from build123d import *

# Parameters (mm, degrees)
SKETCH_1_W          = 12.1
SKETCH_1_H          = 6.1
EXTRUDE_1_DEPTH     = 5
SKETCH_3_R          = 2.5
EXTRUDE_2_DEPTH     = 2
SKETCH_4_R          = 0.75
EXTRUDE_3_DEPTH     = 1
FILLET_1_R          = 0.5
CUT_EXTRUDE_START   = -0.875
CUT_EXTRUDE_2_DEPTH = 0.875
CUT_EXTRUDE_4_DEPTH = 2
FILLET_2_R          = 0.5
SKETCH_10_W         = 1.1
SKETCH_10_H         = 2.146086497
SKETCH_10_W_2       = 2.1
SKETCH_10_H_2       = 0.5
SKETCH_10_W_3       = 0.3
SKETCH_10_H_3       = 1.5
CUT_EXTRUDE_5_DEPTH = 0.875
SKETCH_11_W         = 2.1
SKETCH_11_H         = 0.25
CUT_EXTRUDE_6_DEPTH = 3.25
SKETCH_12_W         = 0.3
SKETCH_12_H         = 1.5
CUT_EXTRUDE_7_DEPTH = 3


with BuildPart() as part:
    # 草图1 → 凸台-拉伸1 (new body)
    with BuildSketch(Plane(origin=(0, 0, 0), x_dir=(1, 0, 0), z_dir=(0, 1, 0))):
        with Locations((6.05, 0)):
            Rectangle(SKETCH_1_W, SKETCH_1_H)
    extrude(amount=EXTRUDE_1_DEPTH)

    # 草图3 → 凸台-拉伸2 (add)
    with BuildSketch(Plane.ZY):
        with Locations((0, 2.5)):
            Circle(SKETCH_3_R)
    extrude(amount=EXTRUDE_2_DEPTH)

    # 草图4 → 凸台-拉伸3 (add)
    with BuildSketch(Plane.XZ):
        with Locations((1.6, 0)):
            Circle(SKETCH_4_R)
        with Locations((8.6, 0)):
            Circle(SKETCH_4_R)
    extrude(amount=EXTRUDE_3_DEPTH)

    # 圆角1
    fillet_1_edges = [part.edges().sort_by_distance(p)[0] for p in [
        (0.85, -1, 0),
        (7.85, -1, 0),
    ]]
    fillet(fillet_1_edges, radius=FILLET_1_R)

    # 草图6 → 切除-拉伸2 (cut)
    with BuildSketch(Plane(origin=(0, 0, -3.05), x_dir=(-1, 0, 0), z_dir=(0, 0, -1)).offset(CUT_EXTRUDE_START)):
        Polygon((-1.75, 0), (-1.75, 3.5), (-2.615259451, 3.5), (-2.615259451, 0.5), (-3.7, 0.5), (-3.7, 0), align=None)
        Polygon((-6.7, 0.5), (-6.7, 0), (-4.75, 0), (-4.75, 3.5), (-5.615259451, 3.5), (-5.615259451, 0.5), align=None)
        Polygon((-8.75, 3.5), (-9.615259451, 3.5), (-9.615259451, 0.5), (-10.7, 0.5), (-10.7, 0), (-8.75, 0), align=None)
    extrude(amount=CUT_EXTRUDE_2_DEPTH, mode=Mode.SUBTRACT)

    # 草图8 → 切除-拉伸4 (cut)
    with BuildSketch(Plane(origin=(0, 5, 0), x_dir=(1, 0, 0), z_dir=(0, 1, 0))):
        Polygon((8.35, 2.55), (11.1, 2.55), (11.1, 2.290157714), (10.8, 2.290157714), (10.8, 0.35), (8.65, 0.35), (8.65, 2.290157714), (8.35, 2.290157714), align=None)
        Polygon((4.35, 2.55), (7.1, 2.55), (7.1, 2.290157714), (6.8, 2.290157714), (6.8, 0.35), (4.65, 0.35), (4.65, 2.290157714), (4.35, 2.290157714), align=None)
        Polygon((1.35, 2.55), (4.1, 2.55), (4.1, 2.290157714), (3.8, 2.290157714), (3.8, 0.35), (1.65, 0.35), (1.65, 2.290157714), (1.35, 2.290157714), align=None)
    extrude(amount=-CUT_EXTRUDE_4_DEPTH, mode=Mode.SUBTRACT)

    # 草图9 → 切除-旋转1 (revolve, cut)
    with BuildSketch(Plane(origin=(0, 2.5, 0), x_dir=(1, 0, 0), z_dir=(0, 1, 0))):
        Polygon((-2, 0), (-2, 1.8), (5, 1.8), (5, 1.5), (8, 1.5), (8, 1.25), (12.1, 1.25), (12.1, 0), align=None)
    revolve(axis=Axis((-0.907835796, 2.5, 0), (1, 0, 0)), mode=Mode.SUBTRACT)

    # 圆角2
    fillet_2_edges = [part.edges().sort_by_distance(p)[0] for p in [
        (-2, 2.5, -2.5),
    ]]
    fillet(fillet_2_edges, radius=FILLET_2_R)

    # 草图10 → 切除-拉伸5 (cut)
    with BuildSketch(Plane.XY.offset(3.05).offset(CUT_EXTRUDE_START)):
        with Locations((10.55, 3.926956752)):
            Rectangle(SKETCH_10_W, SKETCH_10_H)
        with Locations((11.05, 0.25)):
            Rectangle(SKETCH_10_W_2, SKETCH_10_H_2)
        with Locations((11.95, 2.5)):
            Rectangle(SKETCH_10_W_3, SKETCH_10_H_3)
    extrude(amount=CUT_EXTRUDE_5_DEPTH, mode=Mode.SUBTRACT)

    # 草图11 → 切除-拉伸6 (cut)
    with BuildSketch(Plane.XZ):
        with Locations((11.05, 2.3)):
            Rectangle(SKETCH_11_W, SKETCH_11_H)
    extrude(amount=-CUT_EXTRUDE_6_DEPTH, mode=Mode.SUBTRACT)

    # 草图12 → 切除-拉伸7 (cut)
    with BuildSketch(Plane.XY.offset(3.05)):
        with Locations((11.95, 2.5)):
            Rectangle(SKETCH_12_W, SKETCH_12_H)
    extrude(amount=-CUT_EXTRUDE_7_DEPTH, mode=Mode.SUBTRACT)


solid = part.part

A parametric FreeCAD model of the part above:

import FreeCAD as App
import Part
import Sketcher

V = App.Vector


def edges_at(feature, points):
    """Names of the edges that pass closest to the given points."""
    edges = feature.Shape.Edges
    near = lambda p: min(range(len(edges)), key=lambda i: edges[i].distToShape(Part.Vertex(*p))[0])
    return sorted({f"Edge{near(p) + 1}" for p in points})


def add_polygon(sketch, points):
    """Adds a closed chain of lines whose ends are joined by coincident constraints."""
    first, n = sketch.GeometryCount, len(points)
    for a, b in zip(points, points[1:] + points[:1]):
        sketch.addGeometry(Part.LineSegment(App.Vector(*a, 0), App.Vector(*b, 0)), False)
    for i in range(n):
        sketch.addConstraint(Sketcher.Constraint("Coincident", first + i, 2, first + (i + 1) % n, 1))

doc = App.newDocument("Part")
body = doc.addObject("PartDesign::Body", "Body")

sketch1 = body.newObject("Sketcher::SketchObject", "Sketch")
sketch1.AttachmentSupport = (doc.getObject("XZ_Plane"), [""])
sketch1.MapMode = "FlatFace"
add_polygon(sketch1, [(0, -3), (0, 3), (12, 3), (12, -3)])
sketch1.addConstraint([
    Sketcher.Constraint("Vertical", 0),
    Sketcher.Constraint("Horizontal", 1),
    Sketcher.Constraint("Vertical", 2),
    Sketcher.Constraint("Horizontal", 3),
    Sketcher.Constraint("Symmetric", 0, 2, 3, 2, -1, 1),
    Sketcher.Constraint("DistanceX", 1, 1, 1, 2, 12.1),
    Sketcher.Constraint("DistanceY", 0, 1, 0, 2, 6.1),
])
pad1 = body.newObject("PartDesign::Pad", "Pad")
pad1.Profile = sketch1
pad1.Length = 5
pad1.Reversed = True

sketch2 = body.newObject("Sketcher::SketchObject", "Sketch001")
sketch2.AttachmentSupport = (doc.getObject("YZ_Plane"), [""])
sketch2.MapMode = "FlatFace"
sketch2.addGeometry(Part.Circle(V(2.5, 0, 0), V(0, 0, 1), 2.5), False)
sketch2.addConstraint([
    Sketcher.Constraint("PointOnObject", 0, 3, -1),
    Sketcher.Constraint("Diameter", 0, 5.0),
    Sketcher.Constraint("DistanceX", -1, 1, 0, 3, 2.5),
])
pad2 = body.newObject("PartDesign::Pad", "Pad001")
pad2.Profile = sketch2
pad2.Length = 2
pad2.Reversed = True

sketch3 = body.newObject("Sketcher::SketchObject", "Sketch002")
sketch3.AttachmentSupport = (doc.getObject("XZ_Plane"), [""])
sketch3.MapMode = "FlatFace"
sketch3.addGeometry([
    Part.Circle(V(1.6, 0, 0), V(0, 0, 1), 0.8),
    Part.Circle(V(8.6, 0, 0), V(0, 0, 1), 0.8),
], False)
sketch3.addConstraint([
    Sketcher.Constraint("Equal", 0, 1),
    Sketcher.Constraint("PointOnObject", 0, 3, -1),
    Sketcher.Constraint("PointOnObject", 1, 3, -1),
    Sketcher.Constraint("Diameter", 0, 1.5),
    Sketcher.Constraint("DistanceX", 0, 3, 1, 3, 7.0),
    Sketcher.Constraint("DistanceX", -1, 1, 0, 3, 1.6),
])
pad3 = body.newObject("PartDesign::Pad", "Pad002")
pad3.Profile = sketch3
pad3.Length = 1
doc.recompute()

fillet = body.newObject("PartDesign::Fillet", "Fillet")
fillet.Base = (pad3, edges_at(pad3, [(0.85, -1, 0), (7.85, -1, 0)]))
fillet.Radius = 0.5

sketch4 = body.newObject("Sketcher::SketchObject", "Sketch003")
sketch4.AttachmentSupport = (doc.getObject("XY_Plane"), [""])
sketch4.MapMode = "FlatFace"
sketch4.AttachmentOffset = App.Placement(V(0, 0, -2.175), App.Rotation())
add_polygon(sketch4, [(1.8, 0), (1.8, 3.5), (2.6, 3.5), (2.6, 0.5), (3.7, 0.5), (3.7, 0)])
add_polygon(sketch4, [(6.7, 0.5), (6.7, 0), (4.8, 0), (4.8, 3.5), (5.6, 3.5), (5.6, 0.5)])
add_polygon(sketch4, [(8.8, 3.5), (9.6, 3.5), (9.6, 0.5), (10.7, 0.5), (10.7, 0), (8.8, 0)])
sketch4.addConstraint([
    Sketcher.Constraint("Vertical", 0),
    Sketcher.Constraint("Horizontal", 1),
    Sketcher.Constraint("Vertical", 2),
    Sketcher.Constraint("Horizontal", 3),
    Sketcher.Constraint("Vertical", 4),
    Sketcher.Constraint("Horizontal", 5),
    Sketcher.Constraint("Vertical", 6),
    Sketcher.Constraint("Horizontal", 7),
    Sketcher.Constraint("Vertical", 8),
    Sketcher.Constraint("Horizontal", 9),
    Sketcher.Constraint("Vertical", 10),
    Sketcher.Constraint("Horizontal", 11),
    Sketcher.Constraint("Horizontal", 12),
    Sketcher.Constraint("Vertical", 13),
    Sketcher.Constraint("Horizontal", 14),
    Sketcher.Constraint("Vertical", 15),
    Sketcher.Constraint("Horizontal", 16),
    Sketcher.Constraint("Vertical", 17),
    Sketcher.Constraint("PointOnObject", 4, 2, -1),
    Sketcher.Constraint("PointOnObject", 6, 2, -1),
    Sketcher.Constraint("PointOnObject", 15, 2, -1),
    Sketcher.Constraint("Horizontal", 1, 2, 8, 2),
    Sketcher.Constraint("Horizontal", 3, 2, 10, 2),
    Sketcher.Constraint("Horizontal", 9, 2, 12, 2),
    Sketcher.Constraint("Horizontal", 11, 2, 13, 2),
    Sketcher.Constraint("Equal", 5, 7),
    Sketcher.Constraint("Equal", 1, 9),
    Sketcher.Constraint("Equal", 9, 12),
    Sketcher.Constraint("Equal", 11, 14),
    Sketcher.Constraint("DistanceY", 2, 2, 2, 1, 3.0),
    Sketcher.Constraint("DistanceY", 0, 1, 0, 2, 3.5),
    Sketcher.Constraint("DistanceX", 4, 2, 6, 2, 3.0),
    Sketcher.Constraint("DistanceX", 9, 2, 12, 2, 4.0),
    Sketcher.Constraint("DistanceX", 5, 2, 5, 1, 1.95),
    Sketcher.Constraint("DistanceX", -1, 1, 3, 2, 3.7),
    Sketcher.Constraint("DistanceX", 1, 1, 1, 2, 0.865259),
])
pocket1 = body.newObject("PartDesign::Pocket", "Pocket")
pocket1.Profile = sketch4
pocket1.Length = 0.875

sketch5 = body.newObject("Sketcher::SketchObject", "Sketch004")
sketch5.AttachmentSupport = (doc.getObject("XZ_Plane"), [""])
sketch5.MapMode = "FlatFace"
sketch5.AttachmentOffset = App.Placement(V(0, 0, -5), App.Rotation())
add_polygon(sketch5, [(11.1, -2.55), (8.35, -2.55), (8.35, -2.29), (8.65, -2.29), (8.65, -0.35), (10.8, -0.35), (10.8, -2.29), (11.1, -2.29)])
add_polygon(sketch5, [(7.1, -2.55), (4.35, -2.55), (4.35, -2.29), (4.65, -2.29), (4.65, -0.35), (6.8, -0.35), (6.8, -2.29), (7.1, -2.29)])
add_polygon(sketch5, [(4.1, -2.55), (1.35, -2.55), (1.35, -2.29), (1.65, -2.29), (1.65, -0.35), (3.8, -0.35), (3.8, -2.29), (4.1, -2.29)])
sketch5.addConstraint([
    Sketcher.Constraint("Horizontal", 0),
    Sketcher.Constraint("Vertical", 1),
    Sketcher.Constraint("Horizontal", 2),
    Sketcher.Constraint("Vertical", 3),
    Sketcher.Constraint("Horizontal", 4),
    Sketcher.Constraint("Vertical", 5),
    Sketcher.Constraint("Horizontal", 6),
    Sketcher.Constraint("Vertical", 7),
    Sketcher.Constraint("Horizontal", 8),
    Sketcher.Constraint("Vertical", 9),
    Sketcher.Constraint("Horizontal", 10),
    Sketcher.Constraint("Vertical", 11),
    Sketcher.Constraint("Horizontal", 12),
    Sketcher.Constraint("Vertical", 13),
    Sketcher.Constraint("Horizontal", 14),
    Sketcher.Constraint("Vertical", 15),
    Sketcher.Constraint("Horizontal", 16),
    Sketcher.Constraint("Vertical", 17),
    Sketcher.Constraint("Horizontal", 18),
    Sketcher.Constraint("Vertical", 19),
    Sketcher.Constraint("Horizontal", 20),
    Sketcher.Constraint("Vertical", 21),
    Sketcher.Constraint("Horizontal", 22),
    Sketcher.Constraint("Vertical", 23),
    Sketcher.Constraint("Horizontal", 2, 2, 5, 2),
    Sketcher.Constraint("Horizontal", 7, 2, 8, 2),
    Sketcher.Constraint("Horizontal", 6, 2, 9, 2),
    Sketcher.Constraint("Horizontal", 4, 2, 11, 2),
    Sketcher.Constraint("Horizontal", 10, 2, 13, 2),
    Sketcher.Constraint("Horizontal", 15, 2, 16, 2),
    Sketcher.Constraint("Horizontal", 14, 2, 17, 2),
    Sketcher.Constraint("Horizontal", 12, 2, 19, 2),
    Sketcher.Constraint("Horizontal", 18, 2, 21, 2),
    Sketcher.Constraint("Equal", 2, 6),
    Sketcher.Constraint("Equal", 0, 8),
    Sketcher.Constraint("Equal", 6, 10),
    Sketcher.Constraint("Equal", 4, 12),
    Sketcher.Constraint("Equal", 8, 16),
    Sketcher.Constraint("Equal", 14, 18),
    Sketcher.Constraint("Equal", 12, 20),
    Sketcher.Constraint("DistanceX", 2, 1, 2, 2, 0.3),
    Sketcher.Constraint("DistanceX", 8, 2, 0, 2, 4.0),
    Sketcher.Constraint("DistanceX", 16, 2, 8, 2, 3.0),
    Sketcher.Constraint("DistanceX", 0, 2, 0, 1, 2.75),
    Sketcher.Constraint("DistanceX", -1, 1, 4, 2, 10.8),
    Sketcher.Constraint("DistanceY", 0, 2, 3, 2, 2.2),
    Sketcher.Constraint("DistanceY", 0, 2, -1, 1, 2.55),
    Sketcher.Constraint("DistanceY", 1, 1, 1, 2, 0.259842),
])
pocket2 = body.newObject("PartDesign::Pocket", "Pocket001")
pocket2.Profile = sketch5
pocket2.Length = 2
pocket2.Reversed = True

sketch6 = body.newObject("Sketcher::SketchObject", "Sketch005")
sketch6.AttachmentSupport = (doc.getObject("XZ_Plane"), [""])
sketch6.MapMode = "FlatFace"
sketch6.AttachmentOffset = App.Placement(V(0, 0, -2.5), App.Rotation())
add_polygon(sketch6, [(-2, -1.8), (-2, 0), (12.1, 0), (12.1, -1.25), (8, -1.25), (8, -1.5), (5, -1.5), (5, -1.8)])
sketch6.addConstraint([
    Sketcher.Constraint("Vertical", 0),
    Sketcher.Constraint("Horizontal", 1),
    Sketcher.Constraint("Vertical", 2),
    Sketcher.Constraint("Horizontal", 3),
    Sketcher.Constraint("Vertical", 4),
    Sketcher.Constraint("Horizontal", 5),
    Sketcher.Constraint("Vertical", 6),
    Sketcher.Constraint("Horizontal", 7),
    Sketcher.Constraint("PointOnObject", 0, 2, -1),
    Sketcher.Constraint("DistanceX", 5, 2, 5, 1, 3.0),
    Sketcher.Constraint("DistanceX", 7, 2, 7, 1, 7.0),
    Sketcher.Constraint("DistanceX", 1, 1, 1, 2, 14.1),
    Sketcher.Constraint("DistanceY", 0, 1, 0, 2, 1.8),
    Sketcher.Constraint("DistanceY", 6, 2, 6, 1, 0.3),
    Sketcher.Constraint("DistanceX", 0, 2, -1, 1, 2.0),
    Sketcher.Constraint("DistanceY", 2, 2, 2, 1, 1.25),
])
groove = body.newObject("PartDesign::Groove", "Groove")
groove.Profile = sketch6
groove.ReferenceAxis = (sketch6, ["H_Axis"])
groove.Angle = 360
doc.recompute()

fillet2 = body.newObject("PartDesign::Fillet", "Fillet001")
fillet2.Base = (groove, edges_at(groove, [(-2, 2.5, -2.5)]))
fillet2.Radius = 0.5

sketch7 = body.newObject("Sketcher::SketchObject", "Sketch006")
sketch7.AttachmentSupport = (doc.getObject("XY_Plane"), [""])
sketch7.MapMode = "FlatFace"
sketch7.AttachmentOffset = App.Placement(V(0, 0, 2.175), App.Rotation())
add_polygon(sketch7, [(10, 5), (10, 2.85), (11.1, 2.85), (11.1, 5)])
add_polygon(sketch7, [(10, 0.5), (10, 0), (12.1, 0), (12.1, 0.5)])
add_polygon(sketch7, [(11.8, 3.25), (11.8, 1.75), (12.1, 1.75), (12.1, 3.25)])
sketch7.addConstraint([
    Sketcher.Constraint("Vertical", 0),
    Sketcher.Constraint("Horizontal", 1),
    Sketcher.Constraint("Vertical", 2),
    Sketcher.Constraint("Horizontal", 3),
    Sketcher.Constraint("Vertical", 4),
    Sketcher.Constraint("Horizontal", 5),
    Sketcher.Constraint("Vertical", 6),
    Sketcher.Constraint("Horizontal", 7),
    Sketcher.Constraint("Vertical", 8),
    Sketcher.Constraint("Horizontal", 9),
    Sketcher.Constraint("Vertical", 10),
    Sketcher.Constraint("Horizontal", 11),
    Sketcher.Constraint("PointOnObject", 4, 2, -1),
    Sketcher.Constraint("Vertical", 3, 2, 4, 2),
    Sketcher.Constraint("Vertical", 6, 2, 9, 2),
    Sketcher.Constraint("DistanceX", 1, 1, 1, 2, 1.1),
    Sketcher.Constraint("DistanceX", 5, 1, 5, 2, 2.1),
    Sketcher.Constraint("DistanceX", 9, 1, 9, 2, 0.3),
    Sketcher.Constraint("DistanceY", 4, 2, 4, 1, 0.5),
    Sketcher.Constraint("DistanceY", 8, 2, 8, 1, 1.5),
    Sketcher.Constraint("DistanceX", -1, 1, 0, 2, 10.0),
    Sketcher.Constraint("DistanceY", -1, 1, 2, 2, 5.0),
    Sketcher.Constraint("DistanceY", -1, 1, 8, 2, 1.75),
    Sketcher.Constraint("DistanceY", 0, 2, 0, 1, 2.146086),
])
pocket3 = body.newObject("PartDesign::Pocket", "Pocket002")
pocket3.Profile = sketch7
pocket3.Length = 0.875
pocket3.Reversed = True

sketch8 = body.newObject("Sketcher::SketchObject", "Sketch007")
sketch8.AttachmentSupport = (doc.getObject("XZ_Plane"), [""])
sketch8.MapMode = "FlatFace"
add_polygon(sketch8, [(10, 2.42), (10, 2.17), (12.1, 2.17), (12.1, 2.42)])
sketch8.addConstraint([
    Sketcher.Constraint("Vertical", 0),
    Sketcher.Constraint("Horizontal", 1),
    Sketcher.Constraint("Vertical", 2),
    Sketcher.Constraint("Horizontal", 3),
    Sketcher.Constraint("DistanceX", 1, 1, 1, 2, 2.1),
    Sketcher.Constraint("DistanceX", -1, 1, 0, 2, 10.0),
    Sketcher.Constraint("DistanceY", 0, 2, 0, 1, 0.25),
    Sketcher.Constraint("DistanceY", -1, 1, 0, 2, 2.175),
])
pocket4 = body.newObject("PartDesign::Pocket", "Pocket003")
pocket4.Profile = sketch8
pocket4.Length = 3.25

sketch9 = body.newObject("Sketcher::SketchObject", "Sketch008")
sketch9.AttachmentSupport = (doc.getObject("XY_Plane"), [""])
sketch9.MapMode = "FlatFace"
sketch9.AttachmentOffset = App.Placement(V(0, 0, 3.05), App.Rotation())
add_polygon(sketch9, [(11.8, 3.25), (11.8, 1.75), (12.1, 1.75), (12.1, 3.25)])
sketch9.addConstraint([
    Sketcher.Constraint("Vertical", 0),
    Sketcher.Constraint("Horizontal", 1),
    Sketcher.Constraint("Vertical", 2),
    Sketcher.Constraint("Horizontal", 3),
    Sketcher.Constraint("DistanceX", 1, 1, 1, 2, 0.3),
    Sketcher.Constraint("DistanceY", 0, 2, 0, 1, 1.5),
    Sketcher.Constraint("DistanceX", -1, 1, 0, 2, 11.8),
    Sketcher.Constraint("DistanceY", -1, 1, 0, 2, 1.75),
])
pocket5 = body.newObject("PartDesign::Pocket", "Pocket004")
pocket5.Profile = sketch9
pocket5.Length = 3

doc.recompute()
